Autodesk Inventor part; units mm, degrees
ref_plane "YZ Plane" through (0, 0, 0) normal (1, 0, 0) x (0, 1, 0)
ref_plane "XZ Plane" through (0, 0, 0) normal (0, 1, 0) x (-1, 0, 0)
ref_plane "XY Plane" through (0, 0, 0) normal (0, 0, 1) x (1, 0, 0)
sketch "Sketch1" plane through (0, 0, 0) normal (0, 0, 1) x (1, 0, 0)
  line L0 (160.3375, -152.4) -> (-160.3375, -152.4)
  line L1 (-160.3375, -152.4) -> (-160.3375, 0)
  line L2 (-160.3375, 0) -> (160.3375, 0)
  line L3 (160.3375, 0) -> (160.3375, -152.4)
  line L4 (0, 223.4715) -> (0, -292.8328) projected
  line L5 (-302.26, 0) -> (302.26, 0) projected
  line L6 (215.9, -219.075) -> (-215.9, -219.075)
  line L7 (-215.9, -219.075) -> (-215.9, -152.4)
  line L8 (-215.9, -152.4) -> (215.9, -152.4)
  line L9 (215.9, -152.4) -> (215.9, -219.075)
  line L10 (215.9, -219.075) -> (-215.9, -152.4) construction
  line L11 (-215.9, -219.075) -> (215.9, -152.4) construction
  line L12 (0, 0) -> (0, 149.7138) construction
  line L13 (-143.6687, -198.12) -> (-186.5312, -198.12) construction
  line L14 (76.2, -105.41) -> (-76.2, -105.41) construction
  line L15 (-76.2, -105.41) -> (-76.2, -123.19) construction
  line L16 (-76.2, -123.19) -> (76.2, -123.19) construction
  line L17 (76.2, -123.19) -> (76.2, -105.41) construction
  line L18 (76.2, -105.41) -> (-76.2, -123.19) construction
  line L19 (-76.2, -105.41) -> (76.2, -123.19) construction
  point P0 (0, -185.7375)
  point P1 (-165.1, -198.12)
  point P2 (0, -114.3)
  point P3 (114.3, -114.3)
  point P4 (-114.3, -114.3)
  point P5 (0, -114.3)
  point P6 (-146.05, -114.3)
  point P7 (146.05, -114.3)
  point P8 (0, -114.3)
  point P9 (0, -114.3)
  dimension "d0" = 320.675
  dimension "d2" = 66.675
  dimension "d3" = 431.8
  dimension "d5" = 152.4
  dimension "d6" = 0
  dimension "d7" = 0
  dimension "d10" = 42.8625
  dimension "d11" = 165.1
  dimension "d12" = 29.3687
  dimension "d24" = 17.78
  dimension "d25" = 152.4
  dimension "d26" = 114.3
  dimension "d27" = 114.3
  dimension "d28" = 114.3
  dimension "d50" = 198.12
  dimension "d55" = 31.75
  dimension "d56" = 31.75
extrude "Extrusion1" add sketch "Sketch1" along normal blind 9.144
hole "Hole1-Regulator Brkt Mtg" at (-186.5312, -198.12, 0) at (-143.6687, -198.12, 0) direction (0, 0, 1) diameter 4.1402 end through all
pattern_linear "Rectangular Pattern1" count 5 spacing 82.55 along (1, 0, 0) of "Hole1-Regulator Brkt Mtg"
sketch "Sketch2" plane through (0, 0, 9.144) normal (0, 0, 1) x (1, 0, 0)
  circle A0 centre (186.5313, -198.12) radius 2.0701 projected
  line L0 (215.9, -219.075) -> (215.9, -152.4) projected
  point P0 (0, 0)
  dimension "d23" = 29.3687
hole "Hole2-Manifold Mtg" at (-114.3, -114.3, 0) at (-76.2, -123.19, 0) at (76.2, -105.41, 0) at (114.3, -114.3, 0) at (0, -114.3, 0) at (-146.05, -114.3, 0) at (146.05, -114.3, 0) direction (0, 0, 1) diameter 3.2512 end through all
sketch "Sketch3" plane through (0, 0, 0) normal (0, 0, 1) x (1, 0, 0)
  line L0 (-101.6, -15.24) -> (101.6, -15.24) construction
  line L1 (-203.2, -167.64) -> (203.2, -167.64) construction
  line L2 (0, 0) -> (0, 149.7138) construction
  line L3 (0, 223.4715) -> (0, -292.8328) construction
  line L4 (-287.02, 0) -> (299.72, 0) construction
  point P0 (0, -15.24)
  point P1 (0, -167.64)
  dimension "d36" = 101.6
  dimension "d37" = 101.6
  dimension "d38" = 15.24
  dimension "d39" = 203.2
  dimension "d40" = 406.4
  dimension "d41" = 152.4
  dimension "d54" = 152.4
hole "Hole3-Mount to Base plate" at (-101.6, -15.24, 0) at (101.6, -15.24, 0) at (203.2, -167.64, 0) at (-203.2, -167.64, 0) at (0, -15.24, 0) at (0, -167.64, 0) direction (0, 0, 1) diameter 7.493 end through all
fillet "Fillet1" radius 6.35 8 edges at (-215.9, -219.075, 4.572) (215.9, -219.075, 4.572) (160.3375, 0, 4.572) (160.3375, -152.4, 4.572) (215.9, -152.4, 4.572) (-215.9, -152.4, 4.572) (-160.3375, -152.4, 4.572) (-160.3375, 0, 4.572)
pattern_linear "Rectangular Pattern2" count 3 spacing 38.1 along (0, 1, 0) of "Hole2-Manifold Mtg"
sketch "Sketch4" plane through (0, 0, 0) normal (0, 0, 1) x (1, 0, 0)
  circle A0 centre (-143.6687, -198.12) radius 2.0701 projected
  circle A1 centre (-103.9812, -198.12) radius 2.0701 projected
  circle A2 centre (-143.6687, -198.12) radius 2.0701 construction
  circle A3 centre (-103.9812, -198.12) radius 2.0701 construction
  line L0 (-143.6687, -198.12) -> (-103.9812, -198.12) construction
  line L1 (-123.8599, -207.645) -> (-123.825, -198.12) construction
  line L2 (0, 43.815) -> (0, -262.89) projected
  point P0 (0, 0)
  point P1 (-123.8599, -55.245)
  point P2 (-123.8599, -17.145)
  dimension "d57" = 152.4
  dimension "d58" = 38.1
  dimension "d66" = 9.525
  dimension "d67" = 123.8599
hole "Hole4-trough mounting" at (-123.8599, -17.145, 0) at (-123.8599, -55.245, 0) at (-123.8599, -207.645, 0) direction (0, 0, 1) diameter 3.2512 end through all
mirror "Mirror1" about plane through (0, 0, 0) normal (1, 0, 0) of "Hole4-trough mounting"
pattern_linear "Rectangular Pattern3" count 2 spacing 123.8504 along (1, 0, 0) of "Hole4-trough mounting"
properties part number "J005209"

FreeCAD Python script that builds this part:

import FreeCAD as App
import Part
import Sketcher
Q = App.Units.Quantity


def edges_at(feature, points):
    """Names of the edges that pass closest to the given points."""
    edges = feature.Shape.Edges
    near = lambda p: min(range(len(edges)), key=lambda i: edges[i].distToShape(Part.Vertex(*p))[0])
    return sorted({f"Edge{near(p) + 1}" for p in points})


def add_polygon(sketch, points):
    """Adds a closed chain of lines whose ends are joined by coincident constraints."""
    first, n = sketch.GeometryCount, len(points)
    for a, b in zip(points, points[1:] + points[:1]):
        sketch.addGeometry(Part.LineSegment(App.Vector(*a, 0), App.Vector(*b, 0)), False)
    for i in range(n):
        sketch.addConstraint(Sketcher.Constraint("Coincident", first + i, 2, first + (i + 1) % n, 1))

doc = App.newDocument("Part")
body = doc.addObject("PartDesign::Body", "Body")

sketch1 = body.newObject("Sketcher::SketchObject", "Sketch")
sketch1.AttachmentSupport = (doc.getObject("XY_Plane"), [""])
sketch1.MapMode = "FlatFace"
add_polygon(sketch1, [(215.9, -152.4), (160.3375, -152.4), (160.3375, 0), (-160.3375, 0), (-160.3375, -152.4), (-215.9, -152.4), (-215.9, -219.075), (215.9, -219.075)])
sketch1.addConstraint([
    Sketcher.Constraint("Horizontal", 0),
    Sketcher.Constraint("Vertical", 1),
    Sketcher.Constraint("Horizontal", 2),
    Sketcher.Constraint("Vertical", 3),
    Sketcher.Constraint("Horizontal", 4),
    Sketcher.Constraint("Vertical", 5),
    Sketcher.Constraint("Horizontal", 6),
    Sketcher.Constraint("Vertical", 7),
    Sketcher.Constraint("Symmetric", 1, 2, 2, 2, -1, 1),
    Sketcher.Constraint("Symmetric", 4, 2, 7, 2, -2),
    Sketcher.Constraint("DistanceX", 6, 1, 6, 2, Q("17 in")),
    Sketcher.Constraint("DistanceY", 1, 1, 1, 2, Q("6 in")),
    Sketcher.Constraint("DistanceX", 2, 2, 2, 1, Q("12.625 in")),
    Sketcher.Constraint("DistanceY", 5, 2, 5, 1, Q("2.625 in")),
])
pad1 = body.newObject("PartDesign::Pad", "Pad")
pad1.Profile = sketch1
pad1.Length = Q("0.36 in")

sketch2 = body.newObject("Sketcher::SketchObject", "Sketch001")
sketch2.AttachmentSupport = (doc.getObject("XY_Plane"), [""])
sketch2.MapMode = "FlatFace"
sketch2.addGeometry([
    Part.Circle(App.Vector(-186.5312, -198.12, 0), App.Vector(0, 0, 1), 2.0701),
    Part.Circle(App.Vector(-143.6687, -198.12, 0), App.Vector(0, 0, 1), 2.0701),
], False)
sketch2.addConstraint([
    Sketcher.Constraint("Equal", 0, 1),
    Sketcher.Constraint("Horizontal", 0, 3, 1, 3),
    Sketcher.Constraint("Diameter", 0, Q("0.163 in")),
    Sketcher.Constraint("DistanceY", 0, 3, -1, 1, Q("7.8 in")),
    Sketcher.Constraint("DistanceX", 0, 3, -1, 1, Q("7.343748 in")),
    Sketcher.Constraint("DistanceX", 1, 3, -1, 1, Q("5.656248 in")),
])
doc.recompute()
hole = body.newObject("PartDesign::Hole", "Hole")
hole.Profile = sketch2
hole.ThreadType = "None"
hole.Diameter = Q("0.163 in")
hole.DepthType = "ThroughAll"
hole.Reversed = True
doc.recompute()

linearpattern = body.newObject("PartDesign::LinearPattern", "LinearPattern")
linearpattern.Originals = [hole]
linearpattern.Direction = (doc.getObject("X_Axis"), [""])
linearpattern.Mode = "offset"
linearpattern.Offset = Q("3.25 in")
linearpattern.Occurrences = 5
body.Tip = linearpattern

sketch3 = body.newObject("Sketcher::SketchObject", "Sketch002")
sketch3.AttachmentSupport = (doc.getObject("XY_Plane"), [""])
sketch3.MapMode = "FlatFace"
sketch3.addGeometry([
    Part.Circle(App.Vector(-114.3, -114.3, 0), App.Vector(0, 0, 1), 1.6256),
    Part.Circle(App.Vector(-76.2, -123.19, 0), App.Vector(0, 0, 1), 1.6256),
    Part.Circle(App.Vector(76.2, -105.41, 0), App.Vector(0, 0, 1), 1.6256),
    Part.Circle(App.Vector(114.3, -114.3, 0), App.Vector(0, 0, 1), 1.6256),
    Part.Circle(App.Vector(0, -114.3, 0), App.Vector(0, 0, 1), 1.6256),
    Part.Circle(App.Vector(-146.05, -114.3, 0), App.Vector(0, 0, 1), 1.6256),
    Part.Circle(App.Vector(146.05, -114.3, 0), App.Vector(0, 0, 1), 1.6256),
], False)
sketch3.addConstraint([
    Sketcher.Constraint("Equal", 0, 1),
    Sketcher.Constraint("Equal", 1, 2),
    Sketcher.Constraint("Equal", 2, 3),
    Sketcher.Constraint("Equal", 3, 4),
    Sketcher.Constraint("Equal", 4, 5),
    Sketcher.Constraint("Equal", 5, 6),
    Sketcher.Constraint("Symmetric", 0, 3, 3, 3, -2),
    Sketcher.Constraint("Symmetric", 5, 3, 6, 3, -2),
    Sketcher.Constraint("PointOnObject", 4, 3, -2),
    Sketcher.Constraint("Horizontal", 3, 3, 4, 3),
    Sketcher.Constraint("Horizontal", 4, 3, 5, 3),
    Sketcher.Constraint("Diameter", 0, Q("0.128 in")),
    Sketcher.Constraint("DistanceX", 1, 3, -1, 1, Q("3 in")),
    Sketcher.Constraint("DistanceX", -1, 1, 2, 3, Q("3 in")),
    Sketcher.Constraint("DistanceX", 0, 3, 3, 3, Q("9 in")),
    Sketcher.Constraint("DistanceY", 0, 3, -1, 1, Q("4.5 in")),
    Sketcher.Constraint("DistanceY", 1, 3, 2, 3, Q("0.7 in")),
    Sketcher.Constraint("DistanceY", 1, 3, -1, 1, Q("4.85 in")),
    Sketcher.Constraint("DistanceX", 5, 3, -1, 1, Q("5.75 in")),
])
doc.recompute()
hole2 = body.newObject("PartDesign::Hole", "Hole001")
hole2.Profile = sketch3
hole2.ThreadType = "None"
hole2.Diameter = Q("0.128 in")
hole2.DepthType = "ThroughAll"
hole2.Reversed = True

sketch4 = body.newObject("Sketcher::SketchObject", "Sketch003")
sketch4.AttachmentSupport = (doc.getObject("XY_Plane"), [""])
sketch4.MapMode = "FlatFace"
sketch4.addGeometry([
    Part.Circle(App.Vector(-101.6, -15.24, 0), App.Vector(0, 0, 1), 3.7465),
    Part.Circle(App.Vector(101.6, -15.24, 0), App.Vector(0, 0, 1), 3.7465),
    Part.Circle(App.Vector(203.2, -167.64, 0), App.Vector(0, 0, 1), 3.7465),
    Part.Circle(App.Vector(-203.2, -167.64, 0), App.Vector(0, 0, 1), 3.7465),
    Part.Circle(App.Vector(0, -15.24, 0), App.Vector(0, 0, 1), 3.7465),
    Part.Circle(App.Vector(0, -167.64, 0), App.Vector(0, 0, 1), 3.7465),
], False)
sketch4.addConstraint([
    Sketcher.Constraint("Equal", 0, 1),
    Sketcher.Constraint("Equal", 1, 2),
    Sketcher.Constraint("Equal", 2, 3),
    Sketcher.Constraint("Equal", 3, 4),
    Sketcher.Constraint("Equal", 4, 5),
    Sketcher.Constraint("Symmetric", 0, 3, 1, 3, -2),
    Sketcher.Constraint("Symmetric", 2, 3, 3, 3, -2),
    Sketcher.Constraint("PointOnObject", 4, 3, -2),
    Sketcher.Constraint("PointOnObject", 5, 3, -2),
    Sketcher.Constraint("Horizontal", 1, 3, 4, 3),
    Sketcher.Constraint("Horizontal", 3, 3, 5, 3),
    Sketcher.Constraint("Diameter", 0, Q("0.295 in")),
    Sketcher.Constraint("DistanceX", 0, 3, -1, 1, Q("4 in")),
    Sketcher.Constraint("DistanceX", -1, 1, 2, 3, Q("8 in")),
    Sketcher.Constraint("DistanceY", 2, 3, 1, 3, Q("6 in")),
    Sketcher.Constraint("DistanceY", 0, 3, -1, 1, Q("0.6 in")),
])
doc.recompute()
hole3 = body.newObject("PartDesign::Hole", "Hole002")
hole3.Profile = sketch4
hole3.ThreadType = "None"
hole3.Diameter = Q("0.295 in")
hole3.DepthType = "ThroughAll"
hole3.Reversed = True
doc.recompute()

fillet = body.newObject("PartDesign::Fillet", "Fillet")
fillet.Base = (hole3, edges_at(hole3, [
    (-215.9, -219.075, 4.572),
    (215.9, -219.075, 4.572),
    (160.338, 0, 4.572),
    (160.338, -152.4, 4.572),
    (215.9, -152.4, 4.572),
    (-215.9, -152.4, 4.572),
    (-160.338, -152.4, 4.572),
    (-160.338, 0, 4.572),
]))
fillet.Radius = Q("0.25 in")
doc.recompute()

linearpattern2 = body.newObject("PartDesign::LinearPattern", "LinearPattern001")
linearpattern2.Originals = [hole2]
linearpattern2.Direction = (doc.getObject("Y_Axis"), [""])
linearpattern2.Mode = "offset"
linearpattern2.Offset = Q("1.5 in")
linearpattern2.Occurrences = 3
body.Tip = linearpattern2

sketch5 = body.newObject("Sketcher::SketchObject", "Sketch004")
sketch5.AttachmentSupport = (doc.getObject("XY_Plane"), [""])
sketch5.MapMode = "FlatFace"
sketch5.addGeometry([
    Part.Circle(App.Vector(-123.8599, -17.145, 0), App.Vector(0, 0, 1), 1.6256),
    Part.Circle(App.Vector(-123.8599, -55.245, 0), App.Vector(0, 0, 1), 1.6256),
    Part.Circle(App.Vector(-123.8599, -207.645, 0), App.Vector(0, 0, 1), 1.6256),
], False)
sketch5.addConstraint([
    Sketcher.Constraint("Equal", 0, 1),
    Sketcher.Constraint("Equal", 1, 2),
    Sketcher.Constraint("Vertical", 0, 3, 1, 3),
    Sketcher.Constraint("Vertical", 1, 3, 2, 3),
    Sketcher.Constraint("Diameter", 0, Q("0.128 in")),
    Sketcher.Constraint("DistanceY", 2, 3, 1, 3, Q("6 in")),
    Sketcher.Constraint("DistanceY", 1, 3, 0, 3, Q("1.5 in")),
    Sketcher.Constraint("DistanceY", 0, 3, -1, 1, Q("0.675 in")),
    Sketcher.Constraint("DistanceX", 0, 3, -1, 1, Q("123.86 mm")),
])
doc.recompute()
hole4 = body.newObject("PartDesign::Hole", "Hole003")
hole4.Profile = sketch5
hole4.ThreadType = "None"
hole4.Diameter = Q("0.128 in")
hole4.DepthType = "ThroughAll"
hole4.Reversed = True
doc.recompute()

mirrored = body.newObject("PartDesign::Mirrored", "Mirrored")
mirrored.Originals = [hole4]
mirrored.MirrorPlane = (doc.getObject("YZ_Plane"), [""])
body.Tip = mirrored
doc.recompute()

linearpattern3 = body.newObject("PartDesign::LinearPattern", "LinearPattern002")
linearpattern3.Originals = [hole4]
linearpattern3.Direction = (doc.getObject("X_Axis"), [""])
linearpattern3.Mode = "offset"
linearpattern3.Offset = Q("4.876 in")
linearpattern3.Occurrences = 2
body.Tip = linearpattern3

doc.recompute()
